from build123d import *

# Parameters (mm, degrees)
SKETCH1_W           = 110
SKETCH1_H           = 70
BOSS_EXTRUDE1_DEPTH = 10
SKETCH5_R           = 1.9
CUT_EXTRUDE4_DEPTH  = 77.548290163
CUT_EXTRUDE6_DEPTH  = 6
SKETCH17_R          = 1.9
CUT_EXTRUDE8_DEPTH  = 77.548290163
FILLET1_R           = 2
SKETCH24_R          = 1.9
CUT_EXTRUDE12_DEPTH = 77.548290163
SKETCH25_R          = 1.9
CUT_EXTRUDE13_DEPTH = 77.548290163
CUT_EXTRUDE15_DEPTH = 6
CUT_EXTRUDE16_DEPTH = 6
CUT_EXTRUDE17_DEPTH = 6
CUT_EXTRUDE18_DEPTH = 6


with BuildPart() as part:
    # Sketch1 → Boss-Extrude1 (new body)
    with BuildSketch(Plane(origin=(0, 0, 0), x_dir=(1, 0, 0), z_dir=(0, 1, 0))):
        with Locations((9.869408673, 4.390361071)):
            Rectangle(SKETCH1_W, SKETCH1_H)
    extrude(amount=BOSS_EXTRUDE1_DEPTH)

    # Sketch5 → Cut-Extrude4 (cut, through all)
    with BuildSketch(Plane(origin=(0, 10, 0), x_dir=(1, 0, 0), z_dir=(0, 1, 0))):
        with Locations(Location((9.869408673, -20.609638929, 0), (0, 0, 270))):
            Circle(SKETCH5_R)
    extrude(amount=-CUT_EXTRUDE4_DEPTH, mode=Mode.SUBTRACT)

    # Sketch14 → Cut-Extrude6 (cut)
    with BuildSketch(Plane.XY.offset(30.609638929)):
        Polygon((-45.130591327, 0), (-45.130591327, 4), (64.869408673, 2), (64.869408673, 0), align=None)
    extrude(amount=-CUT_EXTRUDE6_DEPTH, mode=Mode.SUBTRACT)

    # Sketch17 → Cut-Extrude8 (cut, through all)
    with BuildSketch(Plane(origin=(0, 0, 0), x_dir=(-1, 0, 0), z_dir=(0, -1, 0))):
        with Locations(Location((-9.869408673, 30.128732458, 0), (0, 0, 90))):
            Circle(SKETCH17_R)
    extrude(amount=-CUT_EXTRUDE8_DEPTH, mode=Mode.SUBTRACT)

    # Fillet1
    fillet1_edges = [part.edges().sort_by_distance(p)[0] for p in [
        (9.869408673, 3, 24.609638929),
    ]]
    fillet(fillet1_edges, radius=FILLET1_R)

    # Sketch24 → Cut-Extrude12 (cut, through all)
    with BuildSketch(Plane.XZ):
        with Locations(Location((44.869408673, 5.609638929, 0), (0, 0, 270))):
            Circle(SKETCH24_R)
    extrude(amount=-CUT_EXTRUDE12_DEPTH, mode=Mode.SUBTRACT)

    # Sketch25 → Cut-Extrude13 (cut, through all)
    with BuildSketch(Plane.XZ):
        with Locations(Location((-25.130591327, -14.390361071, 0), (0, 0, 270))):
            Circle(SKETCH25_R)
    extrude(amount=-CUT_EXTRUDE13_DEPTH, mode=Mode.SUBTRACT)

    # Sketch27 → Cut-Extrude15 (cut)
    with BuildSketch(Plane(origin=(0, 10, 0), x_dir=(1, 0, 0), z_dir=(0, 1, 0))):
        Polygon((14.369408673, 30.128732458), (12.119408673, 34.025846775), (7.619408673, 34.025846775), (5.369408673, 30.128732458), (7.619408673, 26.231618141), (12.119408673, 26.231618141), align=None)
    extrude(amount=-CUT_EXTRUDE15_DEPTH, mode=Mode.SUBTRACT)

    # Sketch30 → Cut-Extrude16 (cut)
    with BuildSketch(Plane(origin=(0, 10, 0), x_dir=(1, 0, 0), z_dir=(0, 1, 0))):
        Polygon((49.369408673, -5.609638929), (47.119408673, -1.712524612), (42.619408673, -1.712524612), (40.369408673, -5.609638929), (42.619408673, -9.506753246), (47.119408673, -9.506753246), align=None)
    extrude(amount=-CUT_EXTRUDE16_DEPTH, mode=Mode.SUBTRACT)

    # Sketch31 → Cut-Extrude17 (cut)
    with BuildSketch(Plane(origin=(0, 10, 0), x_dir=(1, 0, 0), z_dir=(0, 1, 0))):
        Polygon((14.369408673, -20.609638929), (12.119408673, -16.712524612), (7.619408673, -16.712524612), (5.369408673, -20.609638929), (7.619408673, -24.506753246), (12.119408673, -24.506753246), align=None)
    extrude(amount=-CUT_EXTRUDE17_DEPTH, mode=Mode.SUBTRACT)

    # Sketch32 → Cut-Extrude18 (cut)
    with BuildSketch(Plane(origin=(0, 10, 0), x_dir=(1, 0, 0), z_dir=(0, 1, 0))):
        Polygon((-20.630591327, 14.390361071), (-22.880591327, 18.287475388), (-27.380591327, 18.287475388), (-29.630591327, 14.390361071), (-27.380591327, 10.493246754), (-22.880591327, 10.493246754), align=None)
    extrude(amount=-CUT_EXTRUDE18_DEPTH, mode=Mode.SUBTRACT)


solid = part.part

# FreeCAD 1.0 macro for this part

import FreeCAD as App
import Part
import Sketcher

V = App.Vector
Q = App.Units.Quantity


def edges_at(feature, points):
    """Names of the edges that pass closest to the given points."""
    edges = feature.Shape.Edges
    near = lambda p: min(range(len(edges)), key=lambda i: edges[i].distToShape(Part.Vertex(*p))[0])
    return sorted({f"Edge{near(p) + 1}" for p in points})

doc = App.newDocument("Part")
params = doc.addObject("Spreadsheet::Sheet", "Params")
for row, (alias, value) in enumerate([
    ("sketch1_width", "110 mm"),
    ("sketch1_height", "70 mm"),
    ("pad1_length", "10 mm"),
    ("sketch2_diameter", "3.8 mm"),
    ("sketch3_width", "110 mm"),
    ("sketch3_height", "4 mm"),
    ("sketch3_height2", "2 mm"),
    ("pocket2_length", "6 mm"),
    ("sketch4_diameter", "3.8 mm"),
    ("fillet_radius", "2 mm"),
    ("sketch5_diameter", "3.8 mm"),
    ("sketch6_diameter", "3.8 mm"),
    ("sketch7_width", "4.5 mm"),
    ("pocket6_length", "6 mm"),
    ("sketch8_width", "4.5 mm"),
    ("pocket7_length", "6 mm"),
    ("sketch9_width", "4.5 mm"),
    ("pocket8_length", "6 mm"),
    ("sketch10_width", "4.5 mm"),
    ("pocket9_length", "6 mm"),
], start=1):
    params.set(f"A{row}", alias)
    params.set(f"B{row}", "=" + value)
    params.setAlias(f"B{row}", alias)

body = doc.addObject("PartDesign::Body", "Body")

# Sketch on XZ plane
sketch1 = body.newObject("Sketcher::SketchObject", "Sketch")
sketch1.AttachmentSupport = (doc.getObject("XZ_Plane"), [""])
sketch1.MapMode = "FlatFace"
sketch1.addGeometry(Part.LineSegment(V(-45, -39, 0), V(-45, 31, 0)), False)
sketch1.addGeometry(Part.LineSegment(V(-45, 31, 0), V(65, 31, 0)), False)
sketch1.addGeometry(Part.LineSegment(V(65, 31, 0), V(65, -39, 0)), False)
sketch1.addGeometry(Part.LineSegment(V(65, -39, 0), V(-45, -39, 0)), False)
sketch1.addConstraint(Sketcher.Constraint("Coincident", 0, 2, 1, 1))
sketch1.addConstraint(Sketcher.Constraint("Coincident", 1, 2, 2, 1))
sketch1.addConstraint(Sketcher.Constraint("Coincident", 2, 2, 3, 1))
sketch1.addConstraint(Sketcher.Constraint("Coincident", 3, 2, 0, 1))
sketch1.addConstraint(Sketcher.Constraint("Vertical", 0))
sketch1.addConstraint(Sketcher.Constraint("Horizontal", 1))
sketch1.addConstraint(Sketcher.Constraint("Vertical", 2))
sketch1.addConstraint(Sketcher.Constraint("Horizontal", 3))
sketch1.addConstraint(Sketcher.Constraint("DistanceX", 1, 1, 1, 2, Q("110 mm")))
sketch1.addConstraint(Sketcher.Constraint("DistanceY", 0, 1, 0, 2, Q("70 mm")))
sketch1.addConstraint(Sketcher.Constraint("DistanceX", 0, 2, -1, 1, Q("45.130591 mm")))
sketch1.addConstraint(Sketcher.Constraint("DistanceY", -1, 1, 0, 2, Q("30.609639 mm")))
sketch1.setExpression("Constraints[8]", "Params.sketch1_width")
sketch1.setExpression("Constraints[9]", "Params.sketch1_height")
pad1 = body.newObject("PartDesign::Pad", "Pad")
pad1.Profile = sketch1
pad1.setExpression("Length", "Params.pad1_length")
pad1.Reversed = True

# Sketch on XZ plane
sketch2 = body.newObject("Sketcher::SketchObject", "Sketch001")
sketch2.AttachmentSupport = (doc.getObject("XZ_Plane"), [""])
sketch2.MapMode = "FlatFace"
sketch2.AttachmentOffset = App.Placement(V(0, 0, -10), App.Rotation())
sketch2.addGeometry(Part.Circle(V(9.9, 20.6, 0), V(0, 0, 1), 1.9), False)
sketch2.addConstraint(Sketcher.Constraint("Diameter", 0, Q("3.8 mm")))
sketch2.addConstraint(Sketcher.Constraint("DistanceX", -1, 1, 0, 3, Q("9.869409 mm")))
sketch2.addConstraint(Sketcher.Constraint("DistanceY", -1, 1, 0, 3, Q("20.609639 mm")))
sketch2.setExpression("Constraints[0]", "Params.sketch2_diameter")
pocket1 = body.newObject("PartDesign::Pocket", "Pocket")
pocket1.Profile = sketch2
pocket1.Type = "ThroughAll"
pocket1.Reversed = True

# Sketch on XY plane
sketch3 = body.newObject("Sketcher::SketchObject", "Sketch002")
sketch3.AttachmentSupport = (doc.getObject("XY_Plane"), [""])
sketch3.MapMode = "FlatFace"
sketch3.AttachmentOffset = App.Placement(V(0, 0, 30.609639), App.Rotation())
sketch3.addGeometry(Part.LineSegment(V(-45.1, 4, 0), V(-45.1, 0, 0)), False)
sketch3.addGeometry(Part.LineSegment(V(-45.1, 0, 0), V(64.9, 0, 0)), False)
sketch3.addGeometry(Part.LineSegment(V(64.9, 0, 0), V(64.9, 2, 0)), False)
sketch3.addGeometry(Part.LineSegment(V(64.9, 2, 0), V(-45.1, 4, 0)), False)
sketch3.addConstraint(Sketcher.Constraint("Coincident", 0, 2, 1, 1))
sketch3.addConstraint(Sketcher.Constraint("Coincident", 1, 2, 2, 1))
sketch3.addConstraint(Sketcher.Constraint("Coincident", 2, 2, 3, 1))
sketch3.addConstraint(Sketcher.Constraint("Coincident", 3, 2, 0, 1))
sketch3.addConstraint(Sketcher.Constraint("Vertical", 0))
sketch3.addConstraint(Sketcher.Constraint("Horizontal", 1))
sketch3.addConstraint(Sketcher.Constraint("Vertical", 2))
sketch3.addConstraint(Sketcher.Constraint("PointOnObject", 0, 2, -1))
sketch3.addConstraint(Sketcher.Constraint("DistanceX", 1, 1, 1, 2, Q("110 mm")))
sketch3.addConstraint(Sketcher.Constraint("DistanceY", 0, 2, 0, 1, Q("4 mm")))
sketch3.addConstraint(Sketcher.Constraint("DistanceY", 2, 1, 2, 2, Q("2 mm")))
sketch3.addConstraint(Sketcher.Constraint("DistanceX", 0, 2, -1, 1, Q("45.130591 mm")))
sketch3.setExpression("Constraints[8]", "Params.sketch3_width")
sketch3.setExpression("Constraints[9]", "Params.sketch3_height")
sketch3.setExpression("Constraints[10]", "Params.sketch3_height2")
pocket2 = body.newObject("PartDesign::Pocket", "Pocket001")
pocket2.Profile = sketch3
pocket2.setExpression("Length", "Params.pocket2_length")

# Sketch on XZ plane
sketch4 = body.newObject("Sketcher::SketchObject", "Sketch003")
sketch4.AttachmentSupport = (doc.getObject("XZ_Plane"), [""])
sketch4.MapMode = "FlatFace"
sketch4.addGeometry(Part.Circle(V(9.9, -30.1, 0), V(0, 0, 1), 1.9), False)
sketch4.addConstraint(Sketcher.Constraint("Diameter", 0, Q("3.8 mm")))
sketch4.addConstraint(Sketcher.Constraint("DistanceX", -1, 1, 0, 3, Q("9.869409 mm")))
sketch4.addConstraint(Sketcher.Constraint("DistanceY", 0, 3, -1, 1, Q("30.128732 mm")))
sketch4.setExpression("Constraints[0]", "Params.sketch4_diameter")
pocket3 = body.newObject("PartDesign::Pocket", "Pocket002")
pocket3.Profile = sketch4
pocket3.Type = "ThroughAll"
doc.recompute()

fillet = body.newObject("PartDesign::Fillet", "Fillet")
fillet.Base = (pocket3, edges_at(pocket3, [(9.869, 3, 24.61)]))
fillet.setExpression("Radius", "Params.fillet_radius")

# Sketch on XZ plane
sketch5 = body.newObject("Sketcher::SketchObject", "Sketch004")
sketch5.AttachmentSupport = (doc.getObject("XZ_Plane"), [""])
sketch5.MapMode = "FlatFace"
sketch5.addGeometry(Part.Circle(V(44.9, 5.6, 0), V(0, 0, 1), 1.9), False)
sketch5.addConstraint(Sketcher.Constraint("Diameter", 0, Q("3.8 mm")))
sketch5.addConstraint(Sketcher.Constraint("DistanceX", -1, 1, 0, 3, Q("44.869409 mm")))
sketch5.addConstraint(Sketcher.Constraint("DistanceY", -1, 1, 0, 3, Q("5.609639 mm")))
sketch5.setExpression("Constraints[0]", "Params.sketch5_diameter")
pocket4 = body.newObject("PartDesign::Pocket", "Pocket003")
pocket4.Profile = sketch5
pocket4.Type = "ThroughAll"

# Sketch on XZ plane
sketch6 = body.newObject("Sketcher::SketchObject", "Sketch005")
sketch6.AttachmentSupport = (doc.getObject("XZ_Plane"), [""])
sketch6.MapMode = "FlatFace"
sketch6.addGeometry(Part.Circle(V(-25.1, -14.4, 0), V(0, 0, 1), 1.9), False)
sketch6.addConstraint(Sketcher.Constraint("Diameter", 0, Q("3.8 mm")))
sketch6.addConstraint(Sketcher.Constraint("DistanceX", 0, 3, -1, 1, Q("25.130591 mm")))
sketch6.addConstraint(Sketcher.Constraint("DistanceY", 0, 3, -1, 1, Q("14.390361 mm")))
sketch6.setExpression("Constraints[0]", "Params.sketch6_diameter")
pocket5 = body.newObject("PartDesign::Pocket", "Pocket004")
pocket5.Profile = sketch6
pocket5.Type = "ThroughAll"

# Sketch on XZ plane
sketch7 = body.newObject("Sketcher::SketchObject", "Sketch006")
sketch7.AttachmentSupport = (doc.getObject("XZ_Plane"), [""])
sketch7.MapMode = "FlatFace"
sketch7.AttachmentOffset = App.Placement(V(0, 0, -10), App.Rotation())
sketch7.addGeometry(Part.LineSegment(V(14.4, -30.1, 0), V(12.1, -34, 0)), False)
sketch7.addGeometry(Part.LineSegment(V(12.1, -34, 0), V(7.6, -34, 0)), False)
sketch7.addGeometry(Part.LineSegment(V(7.6, -34, 0), V(5.4, -30.1, 0)), False)
sketch7.addGeometry(Part.LineSegment(V(5.4, -30.1, 0), V(7.6, -26.2, 0)), False)
sketch7.addGeometry(Part.LineSegment(V(7.6, -26.2, 0), V(12.1, -26.2, 0)), False)
sketch7.addGeometry(Part.LineSegment(V(12.1, -26.2, 0), V(14.4, -30.1, 0)), False)
sketch7.addConstraint(Sketcher.Constraint("Coincident", 0, 2, 1, 1))
sketch7.addConstraint(Sketcher.Constraint("Coincident", 1, 2, 2, 1))
sketch7.addConstraint(Sketcher.Constraint("Coincident", 2, 2, 3, 1))
sketch7.addConstraint(Sketcher.Constraint("Coincident", 3, 2, 4, 1))
sketch7.addConstraint(Sketcher.Constraint("Coincident", 4, 2, 5, 1))
sketch7.addConstraint(Sketcher.Constraint("Coincident", 5, 2, 0, 1))
sketch7.addConstraint(Sketcher.Constraint("Horizontal", 1))
sketch7.addConstraint(Sketcher.Constraint("Horizontal", 4))
sketch7.addConstraint(Sketcher.Constraint("Parallel", 0, 3))
sketch7.addConstraint(Sketcher.Constraint("Parallel", 2, 5))
sketch7.addConstraint(Sketcher.Constraint("Horizontal", 2, 2, 5, 2))
sketch7.addConstraint(Sketcher.Constraint("Vertical", 1, 2, 3, 2))
sketch7.addConstraint(Sketcher.Constraint("Vertical", 0, 2, 4, 2))
sketch7.addConstraint(Sketcher.Constraint("Angle", 0, Q("-120 deg")))
sketch7.addConstraint(Sketcher.Constraint("DistanceX", 1, 2, 1, 1, Q("4.5 mm")))
sketch7.addConstraint(Sketcher.Constraint("DistanceX", 2, 2, 5, 2, Q("9 mm")))
sketch7.addConstraint(Sketcher.Constraint("DistanceX", -1, 1, 0, 2, Q("12.119409 mm")))
sketch7.addConstraint(Sketcher.Constraint("DistanceY", 3, 2, -1, 1, Q("26.231618 mm")))
sketch7.setExpression("Constraints[14]", "Params.sketch7_width")
pocket6 = body.newObject("PartDesign::Pocket", "Pocket005")
pocket6.Profile = sketch7
pocket6.setExpression("Length", "Params.pocket6_length")
pocket6.Reversed = True

# Sketch on XZ plane
sketch8 = body.newObject("Sketcher::SketchObject", "Sketch007")
sketch8.AttachmentSupport = (doc.getObject("XZ_Plane"), [""])
sketch8.MapMode = "FlatFace"
sketch8.AttachmentOffset = App.Placement(V(0, 0, -10), App.Rotation())
sketch8.addGeometry(Part.LineSegment(V(49.4, 5.6, 0), V(47.1, 1.7, 0)), False)
sketch8.addGeometry(Part.LineSegment(V(47.1, 1.7, 0), V(42.6, 1.7, 0)), False)
sketch8.addGeometry(Part.LineSegment(V(42.6, 1.7, 0), V(40.4, 5.6, 0)), False)
sketch8.addGeometry(Part.LineSegment(V(40.4, 5.6, 0), V(42.6, 9.5, 0)), False)
sketch8.addGeometry(Part.LineSegment(V(42.6, 9.5, 0), V(47.1, 9.5, 0)), False)
sketch8.addGeometry(Part.LineSegment(V(47.1, 9.5, 0), V(49.4, 5.6, 0)), False)
sketch8.addConstraint(Sketcher.Constraint("Coincident", 0, 2, 1, 1))
sketch8.addConstraint(Sketcher.Constraint("Coincident", 1, 2, 2, 1))
sketch8.addConstraint(Sketcher.Constraint("Coincident", 2, 2, 3, 1))
sketch8.addConstraint(Sketcher.Constraint("Coincident", 3, 2, 4, 1))
sketch8.addConstraint(Sketcher.Constraint("Coincident", 4, 2, 5, 1))
sketch8.addConstraint(Sketcher.Constraint("Coincident", 5, 2, 0, 1))
sketch8.addConstraint(Sketcher.Constraint("Horizontal", 1))
sketch8.addConstraint(Sketcher.Constraint("Horizontal", 4))
sketch8.addConstraint(Sketcher.Constraint("Parallel", 0, 3))
sketch8.addConstraint(Sketcher.Constraint("Parallel", 2, 5))
sketch8.addConstraint(Sketcher.Constraint("Horizontal", 2, 2, 5, 2))
sketch8.addConstraint(Sketcher.Constraint("Vertical", 1, 2, 3, 2))
sketch8.addConstraint(Sketcher.Constraint("Vertical", 0, 2, 4, 2))
sketch8.addConstraint(Sketcher.Constraint("Angle", 0, Q("-120 deg")))
sketch8.addConstraint(Sketcher.Constraint("DistanceX", 1, 2, 1, 1, Q("4.5 mm")))
sketch8.addConstraint(Sketcher.Constraint("DistanceX", 2, 2, 5, 2, Q("9 mm")))
sketch8.addConstraint(Sketcher.Constraint("DistanceX", -1, 1, 0, 2, Q("47.119409 mm")))
sketch8.addConstraint(Sketcher.Constraint("DistanceY", -1, 1, 2, 2, Q("5.609639 mm")))
sketch8.setExpression("Constraints[14]", "Params.sketch8_width")
pocket7 = body.newObject("PartDesign::Pocket", "Pocket006")
pocket7.Profile = sketch8
pocket7.setExpression("Length", "Params.pocket7_length")
pocket7.Reversed = True

# Sketch on XZ plane
sketch9 = body.newObject("Sketcher::SketchObject", "Sketch008")
sketch9.AttachmentSupport = (doc.getObject("XZ_Plane"), [""])
sketch9.MapMode = "FlatFace"
sketch9.AttachmentOffset = App.Placement(V(0, 0, -10), App.Rotation())
sketch9.addGeometry(Part.LineSegment(V(14.4, 20.6, 0), V(12.1, 16.7, 0)), False)
sketch9.addGeometry(Part.LineSegment(V(12.1, 16.7, 0), V(7.6, 16.7, 0)), False)
sketch9.addGeometry(Part.LineSegment(V(7.6, 16.7, 0), V(5.4, 20.6, 0)), False)
sketch9.addGeometry(Part.LineSegment(V(5.4, 20.6, 0), V(7.6, 24.5, 0)), False)
sketch9.addGeometry(Part.LineSegment(V(7.6, 24.5, 0), V(12.1, 24.5, 0)), False)
sketch9.addGeometry(Part.LineSegment(V(12.1, 24.5, 0), V(14.4, 20.6, 0)), False)
sketch9.addConstraint(Sketcher.Constraint("Coincident", 0, 2, 1, 1))
sketch9.addConstraint(Sketcher.Constraint("Coincident", 1, 2, 2, 1))
sketch9.addConstraint(Sketcher.Constraint("Coincident", 2, 2, 3, 1))
sketch9.addConstraint(Sketcher.Constraint("Coincident", 3, 2, 4, 1))
sketch9.addConstraint(Sketcher.Constraint("Coincident", 4, 2, 5, 1))
sketch9.addConstraint(Sketcher.Constraint("Coincident", 5, 2, 0, 1))
sketch9.addConstraint(Sketcher.Constraint("Horizontal", 1))
sketch9.addConstraint(Sketcher.Constraint("Horizontal", 4))
sketch9.addConstraint(Sketcher.Constraint("Parallel", 0, 3))
sketch9.addConstraint(Sketcher.Constraint("Parallel", 2, 5))
sketch9.addConstraint(Sketcher.Constraint("Horizontal", 2, 2, 5, 2))
sketch9.addConstraint(Sketcher.Constraint("Vertical", 1, 2, 3, 2))
sketch9.addConstraint(Sketcher.Constraint("Vertical", 0, 2, 4, 2))
sketch9.addConstraint(Sketcher.Constraint("Angle", 0, Q("-120 deg")))
sketch9.addConstraint(Sketcher.Constraint("DistanceX", 1, 2, 1, 1, Q("4.5 mm")))
sketch9.addConstraint(Sketcher.Constraint("DistanceX", 2, 2, 5, 2, Q("9 mm")))
sketch9.addConstraint(Sketcher.Constraint("DistanceX", -1, 1, 0, 2, Q("12.119409 mm")))
sketch9.addConstraint(Sketcher.Constraint("DistanceY", -1, 1, 2, 2, Q("20.609639 mm")))
sketch9.setExpression("Constraints[14]", "Params.sketch9_width")
pocket8 = body.newObject("PartDesign::Pocket", "Pocket007")
pocket8.Profile = sketch9
pocket8.setExpression("Length", "Params.pocket8_length")
pocket8.Reversed = True

# Sketch on XZ plane
sketch10 = body.newObject("Sketcher::SketchObject", "Sketch009")
sketch10.AttachmentSupport = (doc.getObject("XZ_Plane"), [""])
sketch10.MapMode = "FlatFace"
sketch10.AttachmentOffset = App.Placement(V(0, 0, -10), App.Rotation())
sketch10.addGeometry(Part.LineSegment(V(-20.6, -14.4, 0), V(-22.9, -18.3, 0)), False)
sketch10.addGeometry(Part.LineSegment(V(-22.9, -18.3, 0), V(-27.4, -18.3, 0)), False)
sketch10.addGeometry(Part.LineSegment(V(-27.4, -18.3, 0), V(-29.6, -14.4, 0)), False)
sketch10.addGeometry(Part.LineSegment(V(-29.6, -14.4, 0), V(-27.4, -10.5, 0)), False)
sketch10.addGeometry(Part.LineSegment(V(-27.4, -10.5, 0), V(-22.9, -10.5, 0)), False)
sketch10.addGeometry(Part.LineSegment(V(-22.9, -10.5, 0), V(-20.6, -14.4, 0)), False)
sketch10.addConstraint(Sketcher.Constraint("Coincident", 0, 2, 1, 1))
sketch10.addConstraint(Sketcher.Constraint("Coincident", 1, 2, 2, 1))
sketch10.addConstraint(Sketcher.Constraint("Coincident", 2, 2, 3, 1))
sketch10.addConstraint(Sketcher.Constraint("Coincident", 3, 2, 4, 1))
sketch10.addConstraint(Sketcher.Constraint("Coincident", 4, 2, 5, 1))
sketch10.addConstraint(Sketcher.Constraint("Coincident", 5, 2, 0, 1))
sketch10.addConstraint(Sketcher.Constraint("Horizontal", 1))
sketch10.addConstraint(Sketcher.Constraint("Horizontal", 4))
sketch10.addConstraint(Sketcher.Constraint("Parallel", 0, 3))
sketch10.addConstraint(Sketcher.Constraint("Parallel", 2, 5))
sketch10.addConstraint(Sketcher.Constraint("Horizontal", 2, 2, 5, 2))
sketch10.addConstraint(Sketcher.Constraint("Vertical", 1, 2, 3, 2))
sketch10.addConstraint(Sketcher.Constraint("Vertical", 0, 2, 4, 2))
sketch10.addConstraint(Sketcher.Constraint("Angle", 0, Q("-120 deg")))
sketch10.addConstraint(Sketcher.Constraint("DistanceX", 1, 2, 1, 1, Q("4.5 mm")))
sketch10.addConstraint(Sketcher.Constraint("DistanceX", 2, 2, 5, 2, Q("9 mm")))
sketch10.addConstraint(Sketcher.Constraint("DistanceX", 0, 2, -1, 1, Q("22.880591 mm")))
sketch10.addConstraint(Sketcher.Constraint("DistanceY", 2, 2, -1, 1, Q("14.390361 mm")))
sketch10.setExpression("Constraints[14]", "Params.sketch10_width")
pocket9 = body.newObject("PartDesign::Pocket", "Pocket008")
pocket9.Profile = sketch10
pocket9.setExpression("Length", "Params.pocket9_length")
pocket9.Reversed = True

doc.recompute()
